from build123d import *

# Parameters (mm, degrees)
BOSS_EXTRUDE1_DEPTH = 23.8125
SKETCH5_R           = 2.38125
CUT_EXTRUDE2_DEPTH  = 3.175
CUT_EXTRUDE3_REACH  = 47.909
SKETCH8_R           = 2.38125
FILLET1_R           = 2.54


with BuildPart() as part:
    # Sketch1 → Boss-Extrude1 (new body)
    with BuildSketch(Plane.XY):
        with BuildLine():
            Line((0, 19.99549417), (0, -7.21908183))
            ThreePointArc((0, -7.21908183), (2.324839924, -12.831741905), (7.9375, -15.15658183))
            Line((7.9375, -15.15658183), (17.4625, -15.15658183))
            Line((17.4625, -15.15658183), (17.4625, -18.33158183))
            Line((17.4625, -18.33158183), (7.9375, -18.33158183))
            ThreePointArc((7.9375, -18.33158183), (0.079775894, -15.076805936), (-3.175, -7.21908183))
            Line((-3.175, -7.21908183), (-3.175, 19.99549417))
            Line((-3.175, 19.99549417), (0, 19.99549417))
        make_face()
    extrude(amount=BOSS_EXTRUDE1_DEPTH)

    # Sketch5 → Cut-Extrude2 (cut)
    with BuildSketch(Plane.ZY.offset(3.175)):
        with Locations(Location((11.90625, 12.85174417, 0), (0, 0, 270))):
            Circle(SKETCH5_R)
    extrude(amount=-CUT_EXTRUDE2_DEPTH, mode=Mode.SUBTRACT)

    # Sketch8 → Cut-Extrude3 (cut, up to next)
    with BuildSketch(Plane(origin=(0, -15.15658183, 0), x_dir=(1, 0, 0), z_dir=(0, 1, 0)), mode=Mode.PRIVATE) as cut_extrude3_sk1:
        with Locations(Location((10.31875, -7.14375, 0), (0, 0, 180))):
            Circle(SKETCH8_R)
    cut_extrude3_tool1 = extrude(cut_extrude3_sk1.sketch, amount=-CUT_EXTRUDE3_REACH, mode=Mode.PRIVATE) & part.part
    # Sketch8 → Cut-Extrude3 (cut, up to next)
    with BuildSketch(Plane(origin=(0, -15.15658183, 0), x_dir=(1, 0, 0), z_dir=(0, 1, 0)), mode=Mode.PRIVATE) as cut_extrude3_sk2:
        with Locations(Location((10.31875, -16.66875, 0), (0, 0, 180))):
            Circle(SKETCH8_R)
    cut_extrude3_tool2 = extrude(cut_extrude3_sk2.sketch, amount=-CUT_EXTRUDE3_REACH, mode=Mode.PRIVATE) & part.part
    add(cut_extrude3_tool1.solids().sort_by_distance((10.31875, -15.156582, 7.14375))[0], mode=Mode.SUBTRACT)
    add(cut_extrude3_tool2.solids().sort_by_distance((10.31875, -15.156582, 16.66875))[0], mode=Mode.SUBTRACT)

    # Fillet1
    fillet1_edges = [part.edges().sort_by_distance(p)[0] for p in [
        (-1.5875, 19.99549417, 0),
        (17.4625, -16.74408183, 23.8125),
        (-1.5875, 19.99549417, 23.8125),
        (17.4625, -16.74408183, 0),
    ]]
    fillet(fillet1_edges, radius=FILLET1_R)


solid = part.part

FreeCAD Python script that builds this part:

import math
import FreeCAD as App
import Part
import Sketcher
from FreeCAD import Vector
Q = App.Units.Quantity


def edges_at(feature, points):
    """Names of the edges that pass closest to the given points."""
    edges = feature.Shape.Edges
    near = lambda p: min(range(len(edges)), key=lambda i: edges[i].distToShape(Part.Vertex(*p))[0])
    return sorted({f"Edge{near(p) + 1}" for p in points})

doc = App.newDocument("Part")
params = doc.addObject("Spreadsheet::Sheet", "Params")
for row, (alias, value) in enumerate([
    ("sketch1_radius", "0.4375 in"),
    ("sketch1_radius2", "0.3125 in"),
    ("sketch1_width", "0.375 in"),
    ("pad1_length", "0.9375 in"),
    ("sketch2_diameter", "0.1875 in"),
    ("pocket1_length", "0.125 in"),
    ("sketch3_diameter", "0.1875 in"),
    ("sketch4_diameter", "0.1875 in"),
    ("fillet_radius", "0.1 in"),
], start=1):
    params.set(f"A{row}", alias)
    params.set(f"B{row}", "=" + value)
    params.setAlias(f"B{row}", alias)

body = doc.addObject("PartDesign::Body", "Body")

# Sketch on XY plane
sketch1 = body.newObject("Sketcher::SketchObject", "Sketch")
sketch1.AttachmentSupport = (doc.getObject("XY_Plane"), [""])
sketch1.MapMode = "FlatFace"
sketch1.addGeometry([
    Part.LineSegment(Vector(0, -7.2, 0), Vector(0, 20, 0)),  # 0
    Part.LineSegment(Vector(0, 20, 0), Vector(-3.2, 20, 0)),  # 1
    Part.LineSegment(Vector(-3.2, 20, 0), Vector(-3.2, -7.2, 0)),  # 2
    Part.ArcOfCircle(Part.Circle(Vector(7.9, -7.2, 0), Vector(0, 0, 1), 11.1), math.radians(180), math.radians(270)),  # 3
    Part.LineSegment(Vector(7.9, -18.3, 0), Vector(17.5, -18.3, 0)),  # 4
    Part.LineSegment(Vector(17.5, -18.3, 0), Vector(17.5, -15.2, 0)),  # 5
    Part.LineSegment(Vector(17.5, -15.2, 0), Vector(7.9, -15.2, 0)),  # 6
    Part.ArcOfCircle(Part.Circle(Vector(7.9, -7.2, 0), Vector(0, 0, 1), 7.9), math.radians(-180), math.radians(-90)),  # 7
], False)
sketch1.addConstraint([
    Sketcher.Constraint("Coincident", 0, 2, 1, 1),
    Sketcher.Constraint("Coincident", 1, 2, 2, 1),
    Sketcher.Constraint("Tangent", 2, 2, 3, 1),
    Sketcher.Constraint("Tangent", 3, 2, 4, 1),
    Sketcher.Constraint("Coincident", 4, 2, 5, 1),
    Sketcher.Constraint("Coincident", 5, 2, 6, 1),
    Sketcher.Constraint("Tangent", 6, 2, 7, 2),
    Sketcher.Constraint("Tangent", 7, 1, 0, 1),
    Sketcher.Constraint("Vertical", 0),
    Sketcher.Constraint("Horizontal", 1),
    Sketcher.Constraint("Vertical", 2),
    Sketcher.Constraint("Horizontal", 4),
    Sketcher.Constraint("Vertical", 5),
    Sketcher.Constraint("Horizontal", 6),
    Sketcher.Constraint("Coincident", 7, 3, 3, 3),
    Sketcher.Constraint("PointOnObject", 0, 2, -2),
    Sketcher.Constraint("Radius", 3, Q("0.4375 in")),
    Sketcher.Constraint("Radius", 7, Q("0.3125 in")),
    Sketcher.Constraint("DistanceX", 4, 1, 4, 2, Q("0.375 in")),
    Sketcher.Constraint("DistanceY", 0, 1, 0, 2, Q("27.214576 mm")),
    Sketcher.Constraint("DistanceY", 3, 3, -1, 1, Q("7.219082 mm")),
])
sketch1.setExpression("Constraints[16]", "Params.sketch1_radius")
sketch1.setExpression("Constraints[17]", "Params.sketch1_radius2")
sketch1.setExpression("Constraints[18]", "Params.sketch1_width")
pad1 = body.newObject("PartDesign::Pad", "Pad")
pad1.Profile = sketch1
pad1.setExpression("Length", "Params.pad1_length")

# Sketch on YZ plane
sketch2 = body.newObject("Sketcher::SketchObject", "Sketch001")
sketch2.AttachmentSupport = (doc.getObject("YZ_Plane"), [""])
sketch2.MapMode = "FlatFace"
sketch2.AttachmentOffset = App.Placement(Vector(0, 0, -0.125 * 25.4), App.Rotation())
sketch2.addGeometry(Part.Circle(Vector(12.9, 11.9, 0), Vector(0, 0, 1), 2.4), False)
sketch2.addConstraint([
    Sketcher.Constraint("Diameter", 0, Q("0.1875 in")),
    Sketcher.Constraint("DistanceY", -1, 1, 0, 3, Q("0.46875 in")),
    Sketcher.Constraint("DistanceX", -1, 1, 0, 3, Q("12.851744 mm")),
])
sketch2.setExpression("Constraints[0]", "Params.sketch2_diameter")
pocket1 = body.newObject("PartDesign::Pocket", "Pocket")
pocket1.Profile = sketch2
pocket1.setExpression("Length", "Params.pocket1_length")
pocket1.Reversed = True

# Sketch on XZ plane
sketch3 = body.newObject("Sketcher::SketchObject", "Sketch002")
sketch3.AttachmentSupport = (doc.getObject("XZ_Plane"), [""])
sketch3.MapMode = "FlatFace"
sketch3.AttachmentOffset = App.Placement(Vector(0, 0, 15.156582), App.Rotation())
sketch3.addGeometry(Part.Circle(Vector(10.3, 7.1, 0), Vector(0, 0, 1), 2.4), False)
sketch3.addConstraint([
    Sketcher.Constraint("Diameter", 0, Q("0.1875 in")),
    Sketcher.Constraint("DistanceX", -1, 1, 0, 3, Q("0.40625 in")),
    Sketcher.Constraint("DistanceY", -1, 1, 0, 3, Q("0.28125 in")),
])
sketch3.setExpression("Constraints[0]", "Params.sketch3_diameter")
pocket2 = body.newObject("PartDesign::Pocket", "Pocket001")
pocket2.Profile = sketch3
pocket2.Type = "UpToFirst"
pocket2.Reversed = True

# Sketch on XZ plane
sketch4 = body.newObject("Sketcher::SketchObject", "Sketch003")
sketch4.AttachmentSupport = (doc.getObject("XZ_Plane"), [""])
sketch4.MapMode = "FlatFace"
sketch4.AttachmentOffset = App.Placement(Vector(0, 0, 15.156582), App.Rotation())
sketch4.addGeometry(Part.Circle(Vector(10.3, 16.7, 0), Vector(0, 0, 1), 2.4), False)
sketch4.addConstraint([
    Sketcher.Constraint("Diameter", 0, Q("0.1875 in")),
    Sketcher.Constraint("DistanceX", -1, 1, 0, 3, Q("0.40625 in")),
    Sketcher.Constraint("DistanceY", -1, 1, 0, 3, Q("0.65625 in")),
])
sketch4.setExpression("Constraints[0]", "Params.sketch4_diameter")
pocket3 = body.newObject("PartDesign::Pocket", "Pocket002")
pocket3.Profile = sketch4
pocket3.Type = "UpToFirst"
pocket3.Reversed = True
doc.recompute()

fillet = body.newObject("PartDesign::Fillet", "Fillet")
fillet.Base = (pocket3, edges_at(pocket3, [
    (-1.587, 19.995, 0),
    (17.462, -16.744, 23.812),
    (-1.587, 19.995, 23.812),
    (17.462, -16.744, 0),
]))
fillet.setExpression("Radius", "Params.fillet_radius")

doc.recompute()
